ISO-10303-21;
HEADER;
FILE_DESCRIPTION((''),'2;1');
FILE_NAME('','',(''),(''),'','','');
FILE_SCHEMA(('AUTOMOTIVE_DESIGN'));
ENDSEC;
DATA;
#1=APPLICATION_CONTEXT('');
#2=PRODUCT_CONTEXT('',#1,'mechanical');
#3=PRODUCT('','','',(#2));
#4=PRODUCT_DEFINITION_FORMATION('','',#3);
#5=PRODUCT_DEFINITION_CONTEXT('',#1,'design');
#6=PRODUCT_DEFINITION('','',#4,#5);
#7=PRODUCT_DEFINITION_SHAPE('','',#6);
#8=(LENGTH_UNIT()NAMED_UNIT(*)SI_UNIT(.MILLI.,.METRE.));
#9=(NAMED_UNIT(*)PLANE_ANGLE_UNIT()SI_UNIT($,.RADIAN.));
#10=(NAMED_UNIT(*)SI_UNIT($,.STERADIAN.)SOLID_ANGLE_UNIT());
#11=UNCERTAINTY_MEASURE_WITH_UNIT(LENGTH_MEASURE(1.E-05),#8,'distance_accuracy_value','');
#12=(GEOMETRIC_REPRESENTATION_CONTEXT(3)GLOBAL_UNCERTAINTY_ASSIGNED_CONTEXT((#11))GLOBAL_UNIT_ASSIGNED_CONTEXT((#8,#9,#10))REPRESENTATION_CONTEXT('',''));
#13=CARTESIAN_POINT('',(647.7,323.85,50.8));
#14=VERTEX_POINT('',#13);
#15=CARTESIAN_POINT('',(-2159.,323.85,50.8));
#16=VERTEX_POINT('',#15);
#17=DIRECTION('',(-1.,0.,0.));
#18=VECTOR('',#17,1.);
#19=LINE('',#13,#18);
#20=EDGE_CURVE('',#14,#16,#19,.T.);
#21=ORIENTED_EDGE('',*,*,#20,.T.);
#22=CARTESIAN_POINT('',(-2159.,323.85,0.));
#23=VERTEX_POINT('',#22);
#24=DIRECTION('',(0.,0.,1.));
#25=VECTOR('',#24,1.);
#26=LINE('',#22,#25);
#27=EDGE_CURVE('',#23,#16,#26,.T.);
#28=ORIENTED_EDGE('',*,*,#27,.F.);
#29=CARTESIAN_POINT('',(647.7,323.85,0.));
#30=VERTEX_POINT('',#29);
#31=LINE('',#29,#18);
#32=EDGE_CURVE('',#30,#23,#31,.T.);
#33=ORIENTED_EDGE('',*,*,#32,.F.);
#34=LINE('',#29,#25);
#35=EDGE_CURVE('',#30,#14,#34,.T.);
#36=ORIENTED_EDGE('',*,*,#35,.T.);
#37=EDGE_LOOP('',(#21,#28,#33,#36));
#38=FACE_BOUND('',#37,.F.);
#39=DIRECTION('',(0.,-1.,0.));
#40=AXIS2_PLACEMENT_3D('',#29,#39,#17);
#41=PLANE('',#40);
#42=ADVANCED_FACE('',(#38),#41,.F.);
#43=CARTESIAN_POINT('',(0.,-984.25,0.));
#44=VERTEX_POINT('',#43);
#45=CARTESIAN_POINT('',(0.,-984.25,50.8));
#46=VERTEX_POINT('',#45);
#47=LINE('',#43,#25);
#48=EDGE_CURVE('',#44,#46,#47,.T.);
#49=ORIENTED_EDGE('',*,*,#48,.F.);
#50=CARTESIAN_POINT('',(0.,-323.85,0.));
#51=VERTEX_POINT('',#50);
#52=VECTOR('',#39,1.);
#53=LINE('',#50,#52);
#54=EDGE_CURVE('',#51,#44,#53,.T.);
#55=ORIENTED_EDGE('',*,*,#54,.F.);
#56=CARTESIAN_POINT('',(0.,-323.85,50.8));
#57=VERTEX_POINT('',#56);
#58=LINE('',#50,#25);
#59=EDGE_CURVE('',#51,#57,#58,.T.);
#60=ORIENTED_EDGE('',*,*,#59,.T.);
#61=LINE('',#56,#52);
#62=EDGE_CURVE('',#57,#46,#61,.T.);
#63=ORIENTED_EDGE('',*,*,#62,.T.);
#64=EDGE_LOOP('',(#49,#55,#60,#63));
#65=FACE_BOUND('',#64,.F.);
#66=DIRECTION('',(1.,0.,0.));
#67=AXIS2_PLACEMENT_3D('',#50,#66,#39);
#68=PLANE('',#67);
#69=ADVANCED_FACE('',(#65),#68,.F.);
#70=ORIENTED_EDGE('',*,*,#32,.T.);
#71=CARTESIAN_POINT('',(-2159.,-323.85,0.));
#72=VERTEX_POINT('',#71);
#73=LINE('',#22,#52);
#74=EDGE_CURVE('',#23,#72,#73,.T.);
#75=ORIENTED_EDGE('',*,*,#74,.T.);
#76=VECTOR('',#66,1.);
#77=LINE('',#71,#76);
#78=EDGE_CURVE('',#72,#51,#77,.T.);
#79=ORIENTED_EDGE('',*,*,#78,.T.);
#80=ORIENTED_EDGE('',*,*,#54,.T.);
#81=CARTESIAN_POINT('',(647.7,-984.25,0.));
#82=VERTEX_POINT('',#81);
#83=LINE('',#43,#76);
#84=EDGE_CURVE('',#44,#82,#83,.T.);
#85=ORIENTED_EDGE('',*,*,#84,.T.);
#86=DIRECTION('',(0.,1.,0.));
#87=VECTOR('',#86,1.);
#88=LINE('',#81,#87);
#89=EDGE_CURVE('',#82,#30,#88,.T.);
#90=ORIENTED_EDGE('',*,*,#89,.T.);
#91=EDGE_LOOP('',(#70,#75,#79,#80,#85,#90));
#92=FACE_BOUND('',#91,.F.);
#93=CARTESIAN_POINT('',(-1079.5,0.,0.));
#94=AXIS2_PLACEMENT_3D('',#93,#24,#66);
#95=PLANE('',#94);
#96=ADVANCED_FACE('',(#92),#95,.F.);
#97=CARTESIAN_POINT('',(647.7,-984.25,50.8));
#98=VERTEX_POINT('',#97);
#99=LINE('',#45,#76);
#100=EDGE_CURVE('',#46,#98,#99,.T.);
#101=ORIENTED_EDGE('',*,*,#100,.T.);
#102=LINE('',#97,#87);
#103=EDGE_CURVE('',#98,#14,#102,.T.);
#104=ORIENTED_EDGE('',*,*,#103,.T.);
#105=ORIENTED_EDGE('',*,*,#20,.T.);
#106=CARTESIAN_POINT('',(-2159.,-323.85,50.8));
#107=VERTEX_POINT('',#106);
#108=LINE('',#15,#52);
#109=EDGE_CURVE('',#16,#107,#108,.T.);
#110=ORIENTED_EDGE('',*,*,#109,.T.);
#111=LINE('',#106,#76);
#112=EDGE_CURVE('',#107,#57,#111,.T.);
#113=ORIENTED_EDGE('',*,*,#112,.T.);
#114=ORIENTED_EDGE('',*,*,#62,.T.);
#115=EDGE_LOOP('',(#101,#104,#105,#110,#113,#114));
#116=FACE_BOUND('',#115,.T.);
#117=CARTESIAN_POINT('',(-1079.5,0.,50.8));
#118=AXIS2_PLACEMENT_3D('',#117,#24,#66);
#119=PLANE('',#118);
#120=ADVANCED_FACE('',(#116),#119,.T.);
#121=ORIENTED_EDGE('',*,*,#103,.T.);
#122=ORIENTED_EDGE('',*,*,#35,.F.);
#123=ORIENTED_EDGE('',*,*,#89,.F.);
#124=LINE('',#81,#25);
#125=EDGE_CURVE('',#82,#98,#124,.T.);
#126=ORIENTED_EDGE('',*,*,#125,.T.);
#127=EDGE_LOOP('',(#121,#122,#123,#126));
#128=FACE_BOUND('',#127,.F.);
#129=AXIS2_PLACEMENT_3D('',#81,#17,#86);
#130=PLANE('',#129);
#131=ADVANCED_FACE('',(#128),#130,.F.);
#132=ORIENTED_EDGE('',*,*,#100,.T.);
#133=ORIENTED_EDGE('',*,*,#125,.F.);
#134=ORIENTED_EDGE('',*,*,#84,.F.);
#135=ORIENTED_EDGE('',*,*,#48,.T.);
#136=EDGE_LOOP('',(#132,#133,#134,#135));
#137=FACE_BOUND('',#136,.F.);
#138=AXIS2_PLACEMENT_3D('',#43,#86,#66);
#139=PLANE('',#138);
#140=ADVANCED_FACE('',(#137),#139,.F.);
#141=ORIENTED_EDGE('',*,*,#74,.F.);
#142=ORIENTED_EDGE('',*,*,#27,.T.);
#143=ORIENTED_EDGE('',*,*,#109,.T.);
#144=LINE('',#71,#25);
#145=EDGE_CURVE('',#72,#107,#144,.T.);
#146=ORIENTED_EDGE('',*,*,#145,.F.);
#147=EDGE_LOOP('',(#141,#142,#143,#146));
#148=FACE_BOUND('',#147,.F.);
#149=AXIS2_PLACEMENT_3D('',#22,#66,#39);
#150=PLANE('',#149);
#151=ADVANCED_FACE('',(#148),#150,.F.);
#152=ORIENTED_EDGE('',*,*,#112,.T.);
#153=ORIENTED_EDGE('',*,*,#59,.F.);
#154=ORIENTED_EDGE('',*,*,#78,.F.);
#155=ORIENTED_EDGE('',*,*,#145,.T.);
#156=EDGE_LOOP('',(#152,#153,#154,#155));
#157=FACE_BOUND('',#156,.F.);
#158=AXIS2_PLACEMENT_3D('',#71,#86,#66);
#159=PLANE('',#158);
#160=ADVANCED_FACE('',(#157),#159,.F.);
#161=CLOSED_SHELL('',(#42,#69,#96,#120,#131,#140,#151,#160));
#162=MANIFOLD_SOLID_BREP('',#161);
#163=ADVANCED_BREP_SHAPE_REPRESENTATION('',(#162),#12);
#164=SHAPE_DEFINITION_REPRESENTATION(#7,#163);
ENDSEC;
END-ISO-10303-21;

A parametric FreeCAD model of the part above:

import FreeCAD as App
import Part
import Sketcher

V = App.Vector
Q = App.Units.Quantity


def add_polygon(sketch, points):
    """Adds a closed chain of lines whose ends are joined by coincident constraints."""
    first, n = sketch.GeometryCount, len(points)
    for a, b in zip(points, points[1:] + points[:1]):
        sketch.addGeometry(Part.LineSegment(App.Vector(*a, 0), App.Vector(*b, 0)), False)
    for i in range(n):
        sketch.addConstraint(Sketcher.Constraint("Coincident", first + i, 2, first + (i + 1) % n, 1))

doc = App.newDocument("Part")
body = doc.addObject("PartDesign::Body", "Body")

# Sketch on XY plane
sketch1 = body.newObject("Sketcher::SketchObject", "Sketch")
sketch1.AttachmentSupport = (doc.getObject("XY_Plane"), [""])
sketch1.MapMode = "FlatFace"
add_polygon(sketch1, [(-2159, -323.85), (0, -323.85), (0, -984.25), (647.7, -984.25), (647.7, 323.85), (-2159, 323.85)])  # lines 0-5
sketch1.addConstraint([
    Sketcher.Constraint("Horizontal", 0),
    Sketcher.Constraint("Vertical", 1),
    Sketcher.Constraint("Horizontal", 2),
    Sketcher.Constraint("Vertical", 3),
    Sketcher.Constraint("Horizontal", 4),
    Sketcher.Constraint("Vertical", 5),
    Sketcher.Constraint("PointOnObject", 0, 2, -2),
    Sketcher.Constraint("Equal", 2, 5),
    Sketcher.Constraint("DistanceX", 0, 1, 0, 2, Q("85 in")),
    Sketcher.Constraint("DistanceY", 1, 2, 1, 1, Q("26 in")),
    Sketcher.Constraint("DistanceX", 2, 1, 2, 2, Q("25.5 in")),
    Sketcher.Constraint("DistanceY", 0, 2, -1, 1, Q("12.75 in")),
])
pad1 = body.newObject("PartDesign::Pad", "Pad")
pad1.Profile = sketch1
pad1.Length = Q("2 in")

doc.recompute()
